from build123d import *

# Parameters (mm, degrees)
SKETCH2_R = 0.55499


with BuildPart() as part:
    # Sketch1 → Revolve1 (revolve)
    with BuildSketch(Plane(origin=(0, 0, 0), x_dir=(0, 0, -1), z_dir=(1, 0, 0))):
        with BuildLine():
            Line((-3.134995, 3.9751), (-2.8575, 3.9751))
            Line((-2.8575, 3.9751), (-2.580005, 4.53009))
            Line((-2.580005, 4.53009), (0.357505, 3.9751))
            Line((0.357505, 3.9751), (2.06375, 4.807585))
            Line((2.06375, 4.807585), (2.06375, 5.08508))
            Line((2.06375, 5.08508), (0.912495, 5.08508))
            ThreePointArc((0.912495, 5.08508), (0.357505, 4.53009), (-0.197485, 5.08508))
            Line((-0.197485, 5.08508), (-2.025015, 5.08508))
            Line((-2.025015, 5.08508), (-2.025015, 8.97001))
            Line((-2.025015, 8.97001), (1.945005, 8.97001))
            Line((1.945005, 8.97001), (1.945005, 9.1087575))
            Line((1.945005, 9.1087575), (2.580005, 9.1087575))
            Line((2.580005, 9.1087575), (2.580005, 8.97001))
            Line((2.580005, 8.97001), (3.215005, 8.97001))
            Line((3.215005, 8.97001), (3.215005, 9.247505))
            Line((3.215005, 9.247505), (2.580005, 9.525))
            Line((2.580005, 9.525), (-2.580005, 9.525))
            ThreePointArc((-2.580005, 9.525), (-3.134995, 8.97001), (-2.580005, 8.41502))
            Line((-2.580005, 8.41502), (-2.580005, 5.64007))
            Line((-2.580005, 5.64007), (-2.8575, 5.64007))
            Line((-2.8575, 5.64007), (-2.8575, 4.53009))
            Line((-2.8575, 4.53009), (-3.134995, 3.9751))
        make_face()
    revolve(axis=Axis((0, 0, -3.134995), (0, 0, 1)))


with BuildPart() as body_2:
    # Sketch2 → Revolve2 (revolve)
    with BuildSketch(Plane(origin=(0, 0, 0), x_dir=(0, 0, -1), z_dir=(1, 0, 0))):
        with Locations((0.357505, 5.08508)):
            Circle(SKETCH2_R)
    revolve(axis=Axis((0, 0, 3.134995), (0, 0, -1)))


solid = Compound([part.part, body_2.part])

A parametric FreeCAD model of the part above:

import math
import FreeCAD as App
import Part
import Sketcher

V = App.Vector
Q = App.Units.Quantity

doc = App.newDocument("Part")
body = doc.addObject("PartDesign::Body", "Body")

# Sketch on YZ plane
sketch1 = doc.addObject("Sketcher::SketchObject", "Sketch")
body.addObject(sketch1)
sketch1.AttachmentSupport = (doc.YZ_Plane, [""])
sketch1.MapMode = "FlatFace"
sketch1.addGeometry([
    Part.LineSegment(V(3.9751, 3.134995, 0), V(3.9751, 2.8575, 0)),  # 0
    Part.LineSegment(V(3.9751, 2.8575, 0), V(4.53009, 2.580005, 0)),  # 1
    Part.LineSegment(V(4.53009, 2.580005, 0), V(3.9751, -0.357505, 0)),  # 2
    Part.LineSegment(V(3.9751, -0.357505, 0), V(4.807585, -2.06375, 0)),  # 3
    Part.LineSegment(V(4.807585, -2.06375, 0), V(5.08508, -2.06375, 0)),  # 4
    Part.LineSegment(V(5.08508, -2.06375, 0), V(5.08508, -0.912495, 0)),  # 5
    Part.ArcOfCircle(Part.Circle(V(5.08508, -0.357505, 0), V(0, 0, 1), 0.55499), math.radians(90), math.radians(270)),  # 6
    Part.LineSegment(V(5.08508, 0.197485, 0), V(5.08508, 2.025015, 0)),  # 7
    Part.LineSegment(V(5.08508, 2.025015, 0), V(8.97001, 2.025015, 0)),  # 8
    Part.LineSegment(V(8.97001, 2.025015, 0), V(8.97001, -1.945005, 0)),  # 9
    Part.LineSegment(V(8.97001, -1.945005, 0), V(9.108757, -1.945005, 0)),  # 10
    Part.LineSegment(V(9.108757, -1.945005, 0), V(9.108757, -2.580005, 0)),  # 11
    Part.LineSegment(V(9.108757, -2.580005, 0), V(8.97001, -2.580005, 0)),  # 12
    Part.LineSegment(V(8.97001, -2.580005, 0), V(8.97001, -3.215005, 0)),  # 13
    Part.LineSegment(V(8.97001, -3.215005, 0), V(9.247505, -3.215005, 0)),  # 14
    Part.LineSegment(V(9.247505, -3.215005, 0), V(9.525, -2.580005, 0)),  # 15
    Part.LineSegment(V(9.525, -2.580005, 0), V(9.525, 2.580005, 0)),  # 16
    Part.ArcOfCircle(Part.Circle(V(8.97001, 2.580005, 0), V(0, 0, 1), 0.55499), math.radians(0), math.radians(180)),  # 17
    Part.LineSegment(V(8.41502, 2.580005, 0), V(5.64007, 2.580005, 0)),  # 18
    Part.LineSegment(V(5.64007, 2.580005, 0), V(5.64007, 2.8575, 0)),  # 19
    Part.LineSegment(V(5.64007, 2.8575, 0), V(4.53009, 2.8575, 0)),  # 20
    Part.LineSegment(V(4.53009, 2.8575, 0), V(3.9751, 3.134995, 0)),  # 21
], False)
sketch1.addConstraint([
    Sketcher.Constraint("Coincident", 0, 2, 1, 1),
    Sketcher.Constraint("Coincident", 1, 2, 2, 1),
    Sketcher.Constraint("Coincident", 2, 2, 3, 1),
    Sketcher.Constraint("Coincident", 3, 2, 4, 1),
    Sketcher.Constraint("Coincident", 4, 2, 5, 1),
    Sketcher.Constraint("Coincident", 5, 2, 6, 2),
    Sketcher.Constraint("Coincident", 6, 1, 7, 1),
    Sketcher.Constraint("Coincident", 7, 2, 8, 1),
    Sketcher.Constraint("Coincident", 8, 2, 9, 1),
    Sketcher.Constraint("Coincident", 9, 2, 10, 1),
    Sketcher.Constraint("Coincident", 10, 2, 11, 1),
    Sketcher.Constraint("Coincident", 11, 2, 12, 1),
    Sketcher.Constraint("Coincident", 12, 2, 13, 1),
    Sketcher.Constraint("Coincident", 13, 2, 14, 1),
    Sketcher.Constraint("Coincident", 14, 2, 15, 1),
    Sketcher.Constraint("Coincident", 15, 2, 16, 1),
    Sketcher.Constraint("Tangent", 16, 2, 17, 1),
    Sketcher.Constraint("Coincident", 17, 2, 18, 1),
    Sketcher.Constraint("Coincident", 18, 2, 19, 1),
    Sketcher.Constraint("Coincident", 19, 2, 20, 1),
    Sketcher.Constraint("Coincident", 20, 2, 21, 1),
    Sketcher.Constraint("Coincident", 21, 2, 0, 1),
    Sketcher.Constraint("Vertical", 0),
    Sketcher.Constraint("Horizontal", 4),
    Sketcher.Constraint("Vertical", 5),
    Sketcher.Constraint("Vertical", 7),
    Sketcher.Constraint("Horizontal", 8),
    Sketcher.Constraint("Vertical", 9),
    Sketcher.Constraint("Horizontal", 10),
    Sketcher.Constraint("Vertical", 11),
    Sketcher.Constraint("Horizontal", 12),
    Sketcher.Constraint("Vertical", 13),
    Sketcher.Constraint("Horizontal", 14),
    Sketcher.Constraint("Vertical", 16),
    Sketcher.Constraint("Horizontal", 18),
    Sketcher.Constraint("Vertical", 19),
    Sketcher.Constraint("Horizontal", 20),
    Sketcher.Constraint("Equal", 6, 17),
    Sketcher.Constraint("Parallel", 1, 21),
    Sketcher.Constraint("Horizontal", 17, 3, 1, 2),
    Sketcher.Constraint("Horizontal", 6, 3, 2, 2),
    Sketcher.Constraint("Horizontal", 12, 2, 15, 2),
    Sketcher.Constraint("Horizontal", 16, 2, 17, 2),
    Sketcher.Constraint("Horizontal", 0, 2, 19, 2),
    Sketcher.Constraint("Vertical", 0, 2, 2, 2),
    Sketcher.Constraint("Vertical", 6, 3, 4, 2),
    Sketcher.Constraint("Vertical", 5, 2, 6, 1),
    Sketcher.Constraint("Vertical", 17, 3, 8, 2),
    Sketcher.Constraint("Vertical", 9, 2, 12, 2),
    Sketcher.Constraint("Vertical", 1, 2, 20, 2),
    Sketcher.Constraint("Equal", 4, 14),
    Sketcher.Constraint("Equal", 14, 0),
    Sketcher.Constraint("Equal", 11, 13),
    Sketcher.Constraint("DistanceY", 11, 2, 11, 1, Q("0.025 in")),
    Sketcher.Constraint("DistanceX", 20, 2, 20, 1, Q("0.0437 in")),
    Sketcher.Constraint("DistanceY", 9, 2, 9, 1, Q("0.1563 in")),
    Sketcher.Constraint("DistanceX", -1, 1, 15, 2, Q("0.375 in")),
    Sketcher.Constraint("Radius", 6, 0.55499),
    Sketcher.Constraint("DistanceY", 9, 2, 6, 3, Q("0.0625 in")),
    Sketcher.Constraint("DistanceX", -1, 1, 6, 3, Q("0.2002 in")),
    Sketcher.Constraint("DistanceX", -1, 1, 0, 2, Q("0.1565 in")),
    Sketcher.Constraint("DistanceY", -1, 1, 0, 2, Q("0.1125 in")),
    Sketcher.Constraint("DistanceX", 1, 2, 17, 3, Q("0.1748 in")),
    Sketcher.Constraint("DistanceY", 5, 2, 1, 2, Q("0.1375 in")),
    Sketcher.Constraint("DistanceY", 7, 2, 21, 2, Q("0.0437 in")),
    Sketcher.Constraint("Distance", 3, 1.8985),
    Sketcher.Constraint("DistanceX", 10, 1, 10, 2, 0.138747),
])
revolution = doc.addObject("PartDesign::Revolution", "Revolution")
body.addObject(revolution)
revolution.Profile = sketch1
revolution.ReferenceAxis = (sketch1, ["V_Axis"])
revolution.Angle = 360
body2 = doc.addObject("PartDesign::Body", "Body001")

# Sketch on YZ plane
sketch2 = doc.addObject("Sketcher::SketchObject", "Sketch001")
body2.addObject(sketch2)
sketch2.AttachmentSupport = (doc.getObject("YZ_Plane001"), [""])
sketch2.MapMode = "FlatFace"
sketch2.addGeometry(Part.Circle(V(5.08508, -0.357505, 0), V(0, 0, 1), 0.55499), False)
sketch2.addConstraint([
    Sketcher.Constraint("Diameter", 0, Q("0.0437 in")),
    Sketcher.Constraint("DistanceX", -1, 1, 0, 3, Q("0.2002 in")),
    Sketcher.Constraint("DistanceY", 0, 3, -1, 1, 0.357505),
])
revolution2 = doc.addObject("PartDesign::Revolution", "Revolution001")
body2.addObject(revolution2)
revolution2.Profile = sketch2
revolution2.ReferenceAxis = (sketch2, ["V_Axis"])
revolution2.Angle = 360

doc.recompute()
